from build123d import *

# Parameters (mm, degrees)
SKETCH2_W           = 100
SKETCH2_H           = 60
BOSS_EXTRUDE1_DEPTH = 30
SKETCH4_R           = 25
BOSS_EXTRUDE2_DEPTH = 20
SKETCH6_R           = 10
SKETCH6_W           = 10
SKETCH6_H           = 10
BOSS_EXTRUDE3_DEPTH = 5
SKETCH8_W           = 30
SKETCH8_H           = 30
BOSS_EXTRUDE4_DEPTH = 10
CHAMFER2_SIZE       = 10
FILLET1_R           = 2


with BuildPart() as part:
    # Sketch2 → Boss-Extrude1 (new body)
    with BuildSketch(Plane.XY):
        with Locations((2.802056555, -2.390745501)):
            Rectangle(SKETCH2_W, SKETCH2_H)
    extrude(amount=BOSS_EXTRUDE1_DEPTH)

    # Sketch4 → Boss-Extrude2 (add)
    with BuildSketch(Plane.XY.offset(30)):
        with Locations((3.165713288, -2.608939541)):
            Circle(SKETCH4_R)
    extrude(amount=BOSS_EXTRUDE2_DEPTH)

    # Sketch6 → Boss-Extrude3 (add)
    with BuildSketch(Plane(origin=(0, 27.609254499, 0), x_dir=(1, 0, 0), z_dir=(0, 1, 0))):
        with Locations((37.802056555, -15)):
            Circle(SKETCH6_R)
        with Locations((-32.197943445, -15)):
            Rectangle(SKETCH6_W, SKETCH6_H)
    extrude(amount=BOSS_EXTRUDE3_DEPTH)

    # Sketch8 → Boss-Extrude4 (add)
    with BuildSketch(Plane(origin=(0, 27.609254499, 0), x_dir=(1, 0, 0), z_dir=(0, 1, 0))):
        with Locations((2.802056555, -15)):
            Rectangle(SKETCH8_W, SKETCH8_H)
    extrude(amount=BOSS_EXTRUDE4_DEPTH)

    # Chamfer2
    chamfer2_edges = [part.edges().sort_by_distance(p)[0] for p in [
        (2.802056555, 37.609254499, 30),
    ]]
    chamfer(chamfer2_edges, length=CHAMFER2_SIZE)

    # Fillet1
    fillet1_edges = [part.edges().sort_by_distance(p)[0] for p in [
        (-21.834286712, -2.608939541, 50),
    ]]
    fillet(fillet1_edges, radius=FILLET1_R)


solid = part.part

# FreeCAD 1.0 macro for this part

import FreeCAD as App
import Part
import Sketcher
from FreeCAD import Vector
Q = App.Units.Quantity


def edges_at(feature, points):
    """Names of the edges that pass closest to the given points."""
    edges = feature.Shape.Edges
    near = lambda p: min(range(len(edges)), key=lambda i: edges[i].distToShape(Part.Vertex(*p))[0])
    return sorted({f"Edge{near(p) + 1}" for p in points})


def add_polygon(sketch, points):
    """Adds a closed chain of lines whose ends are joined by coincident constraints."""
    first, n = sketch.GeometryCount, len(points)
    for a, b in zip(points, points[1:] + points[:1]):
        sketch.addGeometry(Part.LineSegment(App.Vector(*a, 0), App.Vector(*b, 0)), False)
    for i in range(n):
        sketch.addConstraint(Sketcher.Constraint("Coincident", first + i, 2, first + (i + 1) % n, 1))

doc = App.newDocument("Part")
body = doc.addObject("PartDesign::Body", "Body")

sketch1 = doc.addObject("Sketcher::SketchObject", "Sketch")
body.addObject(sketch1)
sketch1.AttachmentSupport = (doc.XY_Plane, [""])
sketch1.MapMode = "FlatFace"
add_polygon(sketch1, [(-47.197943, 27.609254), (-47.197943, -32.390746), (52.802057, -32.390746), (52.802057, 27.609254)])
sketch1.addConstraint([
    Sketcher.Constraint("Vertical", 0),
    Sketcher.Constraint("Horizontal", 1),
    Sketcher.Constraint("Vertical", 2),
    Sketcher.Constraint("Horizontal", 3),
    Sketcher.Constraint("DistanceX", 1, 1, 1, 2, Q("100 mm")),
    Sketcher.Constraint("DistanceY", 0, 2, 0, 1, Q("60 mm")),
    Sketcher.Constraint("DistanceX", 0, 2, -1, 1, Q("47.197943 mm")),
    Sketcher.Constraint("DistanceY", 0, 2, -1, 1, Q("32.390746 mm")),
])
pad1 = doc.addObject("PartDesign::Pad", "Pad")
body.addObject(pad1)
pad1.Profile = sketch1
pad1.Length = 30

sketch2 = doc.addObject("Sketcher::SketchObject", "Sketch001")
body.addObject(sketch2)
sketch2.AttachmentSupport = (doc.XY_Plane, [""])
sketch2.MapMode = "FlatFace"
sketch2.AttachmentOffset = App.Placement(Vector(0, 0, 30), App.Rotation())
sketch2.addGeometry(Part.Circle(Vector(3.165713, -2.60894, 0), Vector(0, 0, 1), 25), False)
sketch2.addConstraint([
    Sketcher.Constraint("Diameter", 0, Q("50 mm")),
    Sketcher.Constraint("DistanceY", 0, 3, -1, 1, Q("2.60894 mm")),
    Sketcher.Constraint("DistanceX", -1, 1, 0, 3, Q("3.165713 mm")),
])
pad2 = doc.addObject("PartDesign::Pad", "Pad001")
body.addObject(pad2)
pad2.Profile = sketch2
pad2.Length = 20

sketch3 = doc.addObject("Sketcher::SketchObject", "Sketch002")
body.addObject(sketch3)
sketch3.AttachmentSupport = (doc.XZ_Plane, [""])
sketch3.MapMode = "FlatFace"
sketch3.AttachmentOffset = App.Placement(Vector(0, 0, -27.609254), App.Rotation())
sketch3.addGeometry(Part.Circle(Vector(37.802057, 15, 0), Vector(0, 0, 1), 10), False)
add_polygon(sketch3, [(-37.197943, 10), (-37.197943, 20), (-27.197943, 20), (-27.197943, 10)])
sketch3.addConstraint([
    Sketcher.Constraint("Vertical", 1),
    Sketcher.Constraint("Horizontal", 2),
    Sketcher.Constraint("Vertical", 3),
    Sketcher.Constraint("Horizontal", 4),
    Sketcher.Constraint("Equal", 4, 1),
    Sketcher.Constraint("Diameter", 0, Q("20 mm")),
    Sketcher.Constraint("DistanceX", 2, 1, 2, 2, Q("10 mm")),
    Sketcher.Constraint("DistanceY", -1, 1, 0, 3, Q("15 mm")),
    Sketcher.Constraint("DistanceY", -1, 1, 1, 2, Q("20 mm")),
    Sketcher.Constraint("DistanceX", 1, 2, 0, 3, Q("75 mm")),
    Sketcher.Constraint("DistanceX", -1, 1, 0, 3, Q("37.802057 mm")),
])
pad3 = doc.addObject("PartDesign::Pad", "Pad002")
body.addObject(pad3)
pad3.Profile = sketch3
pad3.Length = 5
pad3.Reversed = True

sketch4 = doc.addObject("Sketcher::SketchObject", "Sketch003")
body.addObject(sketch4)
sketch4.AttachmentSupport = (doc.XZ_Plane, [""])
sketch4.MapMode = "FlatFace"
sketch4.AttachmentOffset = App.Placement(Vector(0, 0, -27.609254), App.Rotation())
add_polygon(sketch4, [(-12.197943, 0), (-12.197943, 30), (17.802057, 30), (17.802057, 0)])
sketch4.addConstraint([
    Sketcher.Constraint("Vertical", 0),
    Sketcher.Constraint("Horizontal", 1),
    Sketcher.Constraint("Vertical", 2),
    Sketcher.Constraint("Horizontal", 3),
    Sketcher.Constraint("PointOnObject", 2, 2, -1),
    Sketcher.Constraint("Equal", 3, 0),
    Sketcher.Constraint("DistanceX", 1, 1, 1, 2, Q("30 mm")),
    Sketcher.Constraint("DistanceX", 0, 2, -1, 1, Q("12.197943 mm")),
])
pad4 = doc.addObject("PartDesign::Pad", "Pad003")
body.addObject(pad4)
pad4.Profile = sketch4
pad4.Length = 10
pad4.Reversed = True
doc.recompute()

chamfer = doc.addObject("PartDesign::Chamfer", "Chamfer")
body.addObject(chamfer)
chamfer.Base = (pad4, edges_at(pad4, [(2.802, 37.609, 30)]))
chamfer.Size = 10
doc.recompute()

fillet = doc.addObject("PartDesign::Fillet", "Fillet")
body.addObject(fillet)
fillet.Base = (chamfer, edges_at(chamfer, [(-21.834, -2.609, 50)]))
fillet.Radius = 2

doc.recompute()
